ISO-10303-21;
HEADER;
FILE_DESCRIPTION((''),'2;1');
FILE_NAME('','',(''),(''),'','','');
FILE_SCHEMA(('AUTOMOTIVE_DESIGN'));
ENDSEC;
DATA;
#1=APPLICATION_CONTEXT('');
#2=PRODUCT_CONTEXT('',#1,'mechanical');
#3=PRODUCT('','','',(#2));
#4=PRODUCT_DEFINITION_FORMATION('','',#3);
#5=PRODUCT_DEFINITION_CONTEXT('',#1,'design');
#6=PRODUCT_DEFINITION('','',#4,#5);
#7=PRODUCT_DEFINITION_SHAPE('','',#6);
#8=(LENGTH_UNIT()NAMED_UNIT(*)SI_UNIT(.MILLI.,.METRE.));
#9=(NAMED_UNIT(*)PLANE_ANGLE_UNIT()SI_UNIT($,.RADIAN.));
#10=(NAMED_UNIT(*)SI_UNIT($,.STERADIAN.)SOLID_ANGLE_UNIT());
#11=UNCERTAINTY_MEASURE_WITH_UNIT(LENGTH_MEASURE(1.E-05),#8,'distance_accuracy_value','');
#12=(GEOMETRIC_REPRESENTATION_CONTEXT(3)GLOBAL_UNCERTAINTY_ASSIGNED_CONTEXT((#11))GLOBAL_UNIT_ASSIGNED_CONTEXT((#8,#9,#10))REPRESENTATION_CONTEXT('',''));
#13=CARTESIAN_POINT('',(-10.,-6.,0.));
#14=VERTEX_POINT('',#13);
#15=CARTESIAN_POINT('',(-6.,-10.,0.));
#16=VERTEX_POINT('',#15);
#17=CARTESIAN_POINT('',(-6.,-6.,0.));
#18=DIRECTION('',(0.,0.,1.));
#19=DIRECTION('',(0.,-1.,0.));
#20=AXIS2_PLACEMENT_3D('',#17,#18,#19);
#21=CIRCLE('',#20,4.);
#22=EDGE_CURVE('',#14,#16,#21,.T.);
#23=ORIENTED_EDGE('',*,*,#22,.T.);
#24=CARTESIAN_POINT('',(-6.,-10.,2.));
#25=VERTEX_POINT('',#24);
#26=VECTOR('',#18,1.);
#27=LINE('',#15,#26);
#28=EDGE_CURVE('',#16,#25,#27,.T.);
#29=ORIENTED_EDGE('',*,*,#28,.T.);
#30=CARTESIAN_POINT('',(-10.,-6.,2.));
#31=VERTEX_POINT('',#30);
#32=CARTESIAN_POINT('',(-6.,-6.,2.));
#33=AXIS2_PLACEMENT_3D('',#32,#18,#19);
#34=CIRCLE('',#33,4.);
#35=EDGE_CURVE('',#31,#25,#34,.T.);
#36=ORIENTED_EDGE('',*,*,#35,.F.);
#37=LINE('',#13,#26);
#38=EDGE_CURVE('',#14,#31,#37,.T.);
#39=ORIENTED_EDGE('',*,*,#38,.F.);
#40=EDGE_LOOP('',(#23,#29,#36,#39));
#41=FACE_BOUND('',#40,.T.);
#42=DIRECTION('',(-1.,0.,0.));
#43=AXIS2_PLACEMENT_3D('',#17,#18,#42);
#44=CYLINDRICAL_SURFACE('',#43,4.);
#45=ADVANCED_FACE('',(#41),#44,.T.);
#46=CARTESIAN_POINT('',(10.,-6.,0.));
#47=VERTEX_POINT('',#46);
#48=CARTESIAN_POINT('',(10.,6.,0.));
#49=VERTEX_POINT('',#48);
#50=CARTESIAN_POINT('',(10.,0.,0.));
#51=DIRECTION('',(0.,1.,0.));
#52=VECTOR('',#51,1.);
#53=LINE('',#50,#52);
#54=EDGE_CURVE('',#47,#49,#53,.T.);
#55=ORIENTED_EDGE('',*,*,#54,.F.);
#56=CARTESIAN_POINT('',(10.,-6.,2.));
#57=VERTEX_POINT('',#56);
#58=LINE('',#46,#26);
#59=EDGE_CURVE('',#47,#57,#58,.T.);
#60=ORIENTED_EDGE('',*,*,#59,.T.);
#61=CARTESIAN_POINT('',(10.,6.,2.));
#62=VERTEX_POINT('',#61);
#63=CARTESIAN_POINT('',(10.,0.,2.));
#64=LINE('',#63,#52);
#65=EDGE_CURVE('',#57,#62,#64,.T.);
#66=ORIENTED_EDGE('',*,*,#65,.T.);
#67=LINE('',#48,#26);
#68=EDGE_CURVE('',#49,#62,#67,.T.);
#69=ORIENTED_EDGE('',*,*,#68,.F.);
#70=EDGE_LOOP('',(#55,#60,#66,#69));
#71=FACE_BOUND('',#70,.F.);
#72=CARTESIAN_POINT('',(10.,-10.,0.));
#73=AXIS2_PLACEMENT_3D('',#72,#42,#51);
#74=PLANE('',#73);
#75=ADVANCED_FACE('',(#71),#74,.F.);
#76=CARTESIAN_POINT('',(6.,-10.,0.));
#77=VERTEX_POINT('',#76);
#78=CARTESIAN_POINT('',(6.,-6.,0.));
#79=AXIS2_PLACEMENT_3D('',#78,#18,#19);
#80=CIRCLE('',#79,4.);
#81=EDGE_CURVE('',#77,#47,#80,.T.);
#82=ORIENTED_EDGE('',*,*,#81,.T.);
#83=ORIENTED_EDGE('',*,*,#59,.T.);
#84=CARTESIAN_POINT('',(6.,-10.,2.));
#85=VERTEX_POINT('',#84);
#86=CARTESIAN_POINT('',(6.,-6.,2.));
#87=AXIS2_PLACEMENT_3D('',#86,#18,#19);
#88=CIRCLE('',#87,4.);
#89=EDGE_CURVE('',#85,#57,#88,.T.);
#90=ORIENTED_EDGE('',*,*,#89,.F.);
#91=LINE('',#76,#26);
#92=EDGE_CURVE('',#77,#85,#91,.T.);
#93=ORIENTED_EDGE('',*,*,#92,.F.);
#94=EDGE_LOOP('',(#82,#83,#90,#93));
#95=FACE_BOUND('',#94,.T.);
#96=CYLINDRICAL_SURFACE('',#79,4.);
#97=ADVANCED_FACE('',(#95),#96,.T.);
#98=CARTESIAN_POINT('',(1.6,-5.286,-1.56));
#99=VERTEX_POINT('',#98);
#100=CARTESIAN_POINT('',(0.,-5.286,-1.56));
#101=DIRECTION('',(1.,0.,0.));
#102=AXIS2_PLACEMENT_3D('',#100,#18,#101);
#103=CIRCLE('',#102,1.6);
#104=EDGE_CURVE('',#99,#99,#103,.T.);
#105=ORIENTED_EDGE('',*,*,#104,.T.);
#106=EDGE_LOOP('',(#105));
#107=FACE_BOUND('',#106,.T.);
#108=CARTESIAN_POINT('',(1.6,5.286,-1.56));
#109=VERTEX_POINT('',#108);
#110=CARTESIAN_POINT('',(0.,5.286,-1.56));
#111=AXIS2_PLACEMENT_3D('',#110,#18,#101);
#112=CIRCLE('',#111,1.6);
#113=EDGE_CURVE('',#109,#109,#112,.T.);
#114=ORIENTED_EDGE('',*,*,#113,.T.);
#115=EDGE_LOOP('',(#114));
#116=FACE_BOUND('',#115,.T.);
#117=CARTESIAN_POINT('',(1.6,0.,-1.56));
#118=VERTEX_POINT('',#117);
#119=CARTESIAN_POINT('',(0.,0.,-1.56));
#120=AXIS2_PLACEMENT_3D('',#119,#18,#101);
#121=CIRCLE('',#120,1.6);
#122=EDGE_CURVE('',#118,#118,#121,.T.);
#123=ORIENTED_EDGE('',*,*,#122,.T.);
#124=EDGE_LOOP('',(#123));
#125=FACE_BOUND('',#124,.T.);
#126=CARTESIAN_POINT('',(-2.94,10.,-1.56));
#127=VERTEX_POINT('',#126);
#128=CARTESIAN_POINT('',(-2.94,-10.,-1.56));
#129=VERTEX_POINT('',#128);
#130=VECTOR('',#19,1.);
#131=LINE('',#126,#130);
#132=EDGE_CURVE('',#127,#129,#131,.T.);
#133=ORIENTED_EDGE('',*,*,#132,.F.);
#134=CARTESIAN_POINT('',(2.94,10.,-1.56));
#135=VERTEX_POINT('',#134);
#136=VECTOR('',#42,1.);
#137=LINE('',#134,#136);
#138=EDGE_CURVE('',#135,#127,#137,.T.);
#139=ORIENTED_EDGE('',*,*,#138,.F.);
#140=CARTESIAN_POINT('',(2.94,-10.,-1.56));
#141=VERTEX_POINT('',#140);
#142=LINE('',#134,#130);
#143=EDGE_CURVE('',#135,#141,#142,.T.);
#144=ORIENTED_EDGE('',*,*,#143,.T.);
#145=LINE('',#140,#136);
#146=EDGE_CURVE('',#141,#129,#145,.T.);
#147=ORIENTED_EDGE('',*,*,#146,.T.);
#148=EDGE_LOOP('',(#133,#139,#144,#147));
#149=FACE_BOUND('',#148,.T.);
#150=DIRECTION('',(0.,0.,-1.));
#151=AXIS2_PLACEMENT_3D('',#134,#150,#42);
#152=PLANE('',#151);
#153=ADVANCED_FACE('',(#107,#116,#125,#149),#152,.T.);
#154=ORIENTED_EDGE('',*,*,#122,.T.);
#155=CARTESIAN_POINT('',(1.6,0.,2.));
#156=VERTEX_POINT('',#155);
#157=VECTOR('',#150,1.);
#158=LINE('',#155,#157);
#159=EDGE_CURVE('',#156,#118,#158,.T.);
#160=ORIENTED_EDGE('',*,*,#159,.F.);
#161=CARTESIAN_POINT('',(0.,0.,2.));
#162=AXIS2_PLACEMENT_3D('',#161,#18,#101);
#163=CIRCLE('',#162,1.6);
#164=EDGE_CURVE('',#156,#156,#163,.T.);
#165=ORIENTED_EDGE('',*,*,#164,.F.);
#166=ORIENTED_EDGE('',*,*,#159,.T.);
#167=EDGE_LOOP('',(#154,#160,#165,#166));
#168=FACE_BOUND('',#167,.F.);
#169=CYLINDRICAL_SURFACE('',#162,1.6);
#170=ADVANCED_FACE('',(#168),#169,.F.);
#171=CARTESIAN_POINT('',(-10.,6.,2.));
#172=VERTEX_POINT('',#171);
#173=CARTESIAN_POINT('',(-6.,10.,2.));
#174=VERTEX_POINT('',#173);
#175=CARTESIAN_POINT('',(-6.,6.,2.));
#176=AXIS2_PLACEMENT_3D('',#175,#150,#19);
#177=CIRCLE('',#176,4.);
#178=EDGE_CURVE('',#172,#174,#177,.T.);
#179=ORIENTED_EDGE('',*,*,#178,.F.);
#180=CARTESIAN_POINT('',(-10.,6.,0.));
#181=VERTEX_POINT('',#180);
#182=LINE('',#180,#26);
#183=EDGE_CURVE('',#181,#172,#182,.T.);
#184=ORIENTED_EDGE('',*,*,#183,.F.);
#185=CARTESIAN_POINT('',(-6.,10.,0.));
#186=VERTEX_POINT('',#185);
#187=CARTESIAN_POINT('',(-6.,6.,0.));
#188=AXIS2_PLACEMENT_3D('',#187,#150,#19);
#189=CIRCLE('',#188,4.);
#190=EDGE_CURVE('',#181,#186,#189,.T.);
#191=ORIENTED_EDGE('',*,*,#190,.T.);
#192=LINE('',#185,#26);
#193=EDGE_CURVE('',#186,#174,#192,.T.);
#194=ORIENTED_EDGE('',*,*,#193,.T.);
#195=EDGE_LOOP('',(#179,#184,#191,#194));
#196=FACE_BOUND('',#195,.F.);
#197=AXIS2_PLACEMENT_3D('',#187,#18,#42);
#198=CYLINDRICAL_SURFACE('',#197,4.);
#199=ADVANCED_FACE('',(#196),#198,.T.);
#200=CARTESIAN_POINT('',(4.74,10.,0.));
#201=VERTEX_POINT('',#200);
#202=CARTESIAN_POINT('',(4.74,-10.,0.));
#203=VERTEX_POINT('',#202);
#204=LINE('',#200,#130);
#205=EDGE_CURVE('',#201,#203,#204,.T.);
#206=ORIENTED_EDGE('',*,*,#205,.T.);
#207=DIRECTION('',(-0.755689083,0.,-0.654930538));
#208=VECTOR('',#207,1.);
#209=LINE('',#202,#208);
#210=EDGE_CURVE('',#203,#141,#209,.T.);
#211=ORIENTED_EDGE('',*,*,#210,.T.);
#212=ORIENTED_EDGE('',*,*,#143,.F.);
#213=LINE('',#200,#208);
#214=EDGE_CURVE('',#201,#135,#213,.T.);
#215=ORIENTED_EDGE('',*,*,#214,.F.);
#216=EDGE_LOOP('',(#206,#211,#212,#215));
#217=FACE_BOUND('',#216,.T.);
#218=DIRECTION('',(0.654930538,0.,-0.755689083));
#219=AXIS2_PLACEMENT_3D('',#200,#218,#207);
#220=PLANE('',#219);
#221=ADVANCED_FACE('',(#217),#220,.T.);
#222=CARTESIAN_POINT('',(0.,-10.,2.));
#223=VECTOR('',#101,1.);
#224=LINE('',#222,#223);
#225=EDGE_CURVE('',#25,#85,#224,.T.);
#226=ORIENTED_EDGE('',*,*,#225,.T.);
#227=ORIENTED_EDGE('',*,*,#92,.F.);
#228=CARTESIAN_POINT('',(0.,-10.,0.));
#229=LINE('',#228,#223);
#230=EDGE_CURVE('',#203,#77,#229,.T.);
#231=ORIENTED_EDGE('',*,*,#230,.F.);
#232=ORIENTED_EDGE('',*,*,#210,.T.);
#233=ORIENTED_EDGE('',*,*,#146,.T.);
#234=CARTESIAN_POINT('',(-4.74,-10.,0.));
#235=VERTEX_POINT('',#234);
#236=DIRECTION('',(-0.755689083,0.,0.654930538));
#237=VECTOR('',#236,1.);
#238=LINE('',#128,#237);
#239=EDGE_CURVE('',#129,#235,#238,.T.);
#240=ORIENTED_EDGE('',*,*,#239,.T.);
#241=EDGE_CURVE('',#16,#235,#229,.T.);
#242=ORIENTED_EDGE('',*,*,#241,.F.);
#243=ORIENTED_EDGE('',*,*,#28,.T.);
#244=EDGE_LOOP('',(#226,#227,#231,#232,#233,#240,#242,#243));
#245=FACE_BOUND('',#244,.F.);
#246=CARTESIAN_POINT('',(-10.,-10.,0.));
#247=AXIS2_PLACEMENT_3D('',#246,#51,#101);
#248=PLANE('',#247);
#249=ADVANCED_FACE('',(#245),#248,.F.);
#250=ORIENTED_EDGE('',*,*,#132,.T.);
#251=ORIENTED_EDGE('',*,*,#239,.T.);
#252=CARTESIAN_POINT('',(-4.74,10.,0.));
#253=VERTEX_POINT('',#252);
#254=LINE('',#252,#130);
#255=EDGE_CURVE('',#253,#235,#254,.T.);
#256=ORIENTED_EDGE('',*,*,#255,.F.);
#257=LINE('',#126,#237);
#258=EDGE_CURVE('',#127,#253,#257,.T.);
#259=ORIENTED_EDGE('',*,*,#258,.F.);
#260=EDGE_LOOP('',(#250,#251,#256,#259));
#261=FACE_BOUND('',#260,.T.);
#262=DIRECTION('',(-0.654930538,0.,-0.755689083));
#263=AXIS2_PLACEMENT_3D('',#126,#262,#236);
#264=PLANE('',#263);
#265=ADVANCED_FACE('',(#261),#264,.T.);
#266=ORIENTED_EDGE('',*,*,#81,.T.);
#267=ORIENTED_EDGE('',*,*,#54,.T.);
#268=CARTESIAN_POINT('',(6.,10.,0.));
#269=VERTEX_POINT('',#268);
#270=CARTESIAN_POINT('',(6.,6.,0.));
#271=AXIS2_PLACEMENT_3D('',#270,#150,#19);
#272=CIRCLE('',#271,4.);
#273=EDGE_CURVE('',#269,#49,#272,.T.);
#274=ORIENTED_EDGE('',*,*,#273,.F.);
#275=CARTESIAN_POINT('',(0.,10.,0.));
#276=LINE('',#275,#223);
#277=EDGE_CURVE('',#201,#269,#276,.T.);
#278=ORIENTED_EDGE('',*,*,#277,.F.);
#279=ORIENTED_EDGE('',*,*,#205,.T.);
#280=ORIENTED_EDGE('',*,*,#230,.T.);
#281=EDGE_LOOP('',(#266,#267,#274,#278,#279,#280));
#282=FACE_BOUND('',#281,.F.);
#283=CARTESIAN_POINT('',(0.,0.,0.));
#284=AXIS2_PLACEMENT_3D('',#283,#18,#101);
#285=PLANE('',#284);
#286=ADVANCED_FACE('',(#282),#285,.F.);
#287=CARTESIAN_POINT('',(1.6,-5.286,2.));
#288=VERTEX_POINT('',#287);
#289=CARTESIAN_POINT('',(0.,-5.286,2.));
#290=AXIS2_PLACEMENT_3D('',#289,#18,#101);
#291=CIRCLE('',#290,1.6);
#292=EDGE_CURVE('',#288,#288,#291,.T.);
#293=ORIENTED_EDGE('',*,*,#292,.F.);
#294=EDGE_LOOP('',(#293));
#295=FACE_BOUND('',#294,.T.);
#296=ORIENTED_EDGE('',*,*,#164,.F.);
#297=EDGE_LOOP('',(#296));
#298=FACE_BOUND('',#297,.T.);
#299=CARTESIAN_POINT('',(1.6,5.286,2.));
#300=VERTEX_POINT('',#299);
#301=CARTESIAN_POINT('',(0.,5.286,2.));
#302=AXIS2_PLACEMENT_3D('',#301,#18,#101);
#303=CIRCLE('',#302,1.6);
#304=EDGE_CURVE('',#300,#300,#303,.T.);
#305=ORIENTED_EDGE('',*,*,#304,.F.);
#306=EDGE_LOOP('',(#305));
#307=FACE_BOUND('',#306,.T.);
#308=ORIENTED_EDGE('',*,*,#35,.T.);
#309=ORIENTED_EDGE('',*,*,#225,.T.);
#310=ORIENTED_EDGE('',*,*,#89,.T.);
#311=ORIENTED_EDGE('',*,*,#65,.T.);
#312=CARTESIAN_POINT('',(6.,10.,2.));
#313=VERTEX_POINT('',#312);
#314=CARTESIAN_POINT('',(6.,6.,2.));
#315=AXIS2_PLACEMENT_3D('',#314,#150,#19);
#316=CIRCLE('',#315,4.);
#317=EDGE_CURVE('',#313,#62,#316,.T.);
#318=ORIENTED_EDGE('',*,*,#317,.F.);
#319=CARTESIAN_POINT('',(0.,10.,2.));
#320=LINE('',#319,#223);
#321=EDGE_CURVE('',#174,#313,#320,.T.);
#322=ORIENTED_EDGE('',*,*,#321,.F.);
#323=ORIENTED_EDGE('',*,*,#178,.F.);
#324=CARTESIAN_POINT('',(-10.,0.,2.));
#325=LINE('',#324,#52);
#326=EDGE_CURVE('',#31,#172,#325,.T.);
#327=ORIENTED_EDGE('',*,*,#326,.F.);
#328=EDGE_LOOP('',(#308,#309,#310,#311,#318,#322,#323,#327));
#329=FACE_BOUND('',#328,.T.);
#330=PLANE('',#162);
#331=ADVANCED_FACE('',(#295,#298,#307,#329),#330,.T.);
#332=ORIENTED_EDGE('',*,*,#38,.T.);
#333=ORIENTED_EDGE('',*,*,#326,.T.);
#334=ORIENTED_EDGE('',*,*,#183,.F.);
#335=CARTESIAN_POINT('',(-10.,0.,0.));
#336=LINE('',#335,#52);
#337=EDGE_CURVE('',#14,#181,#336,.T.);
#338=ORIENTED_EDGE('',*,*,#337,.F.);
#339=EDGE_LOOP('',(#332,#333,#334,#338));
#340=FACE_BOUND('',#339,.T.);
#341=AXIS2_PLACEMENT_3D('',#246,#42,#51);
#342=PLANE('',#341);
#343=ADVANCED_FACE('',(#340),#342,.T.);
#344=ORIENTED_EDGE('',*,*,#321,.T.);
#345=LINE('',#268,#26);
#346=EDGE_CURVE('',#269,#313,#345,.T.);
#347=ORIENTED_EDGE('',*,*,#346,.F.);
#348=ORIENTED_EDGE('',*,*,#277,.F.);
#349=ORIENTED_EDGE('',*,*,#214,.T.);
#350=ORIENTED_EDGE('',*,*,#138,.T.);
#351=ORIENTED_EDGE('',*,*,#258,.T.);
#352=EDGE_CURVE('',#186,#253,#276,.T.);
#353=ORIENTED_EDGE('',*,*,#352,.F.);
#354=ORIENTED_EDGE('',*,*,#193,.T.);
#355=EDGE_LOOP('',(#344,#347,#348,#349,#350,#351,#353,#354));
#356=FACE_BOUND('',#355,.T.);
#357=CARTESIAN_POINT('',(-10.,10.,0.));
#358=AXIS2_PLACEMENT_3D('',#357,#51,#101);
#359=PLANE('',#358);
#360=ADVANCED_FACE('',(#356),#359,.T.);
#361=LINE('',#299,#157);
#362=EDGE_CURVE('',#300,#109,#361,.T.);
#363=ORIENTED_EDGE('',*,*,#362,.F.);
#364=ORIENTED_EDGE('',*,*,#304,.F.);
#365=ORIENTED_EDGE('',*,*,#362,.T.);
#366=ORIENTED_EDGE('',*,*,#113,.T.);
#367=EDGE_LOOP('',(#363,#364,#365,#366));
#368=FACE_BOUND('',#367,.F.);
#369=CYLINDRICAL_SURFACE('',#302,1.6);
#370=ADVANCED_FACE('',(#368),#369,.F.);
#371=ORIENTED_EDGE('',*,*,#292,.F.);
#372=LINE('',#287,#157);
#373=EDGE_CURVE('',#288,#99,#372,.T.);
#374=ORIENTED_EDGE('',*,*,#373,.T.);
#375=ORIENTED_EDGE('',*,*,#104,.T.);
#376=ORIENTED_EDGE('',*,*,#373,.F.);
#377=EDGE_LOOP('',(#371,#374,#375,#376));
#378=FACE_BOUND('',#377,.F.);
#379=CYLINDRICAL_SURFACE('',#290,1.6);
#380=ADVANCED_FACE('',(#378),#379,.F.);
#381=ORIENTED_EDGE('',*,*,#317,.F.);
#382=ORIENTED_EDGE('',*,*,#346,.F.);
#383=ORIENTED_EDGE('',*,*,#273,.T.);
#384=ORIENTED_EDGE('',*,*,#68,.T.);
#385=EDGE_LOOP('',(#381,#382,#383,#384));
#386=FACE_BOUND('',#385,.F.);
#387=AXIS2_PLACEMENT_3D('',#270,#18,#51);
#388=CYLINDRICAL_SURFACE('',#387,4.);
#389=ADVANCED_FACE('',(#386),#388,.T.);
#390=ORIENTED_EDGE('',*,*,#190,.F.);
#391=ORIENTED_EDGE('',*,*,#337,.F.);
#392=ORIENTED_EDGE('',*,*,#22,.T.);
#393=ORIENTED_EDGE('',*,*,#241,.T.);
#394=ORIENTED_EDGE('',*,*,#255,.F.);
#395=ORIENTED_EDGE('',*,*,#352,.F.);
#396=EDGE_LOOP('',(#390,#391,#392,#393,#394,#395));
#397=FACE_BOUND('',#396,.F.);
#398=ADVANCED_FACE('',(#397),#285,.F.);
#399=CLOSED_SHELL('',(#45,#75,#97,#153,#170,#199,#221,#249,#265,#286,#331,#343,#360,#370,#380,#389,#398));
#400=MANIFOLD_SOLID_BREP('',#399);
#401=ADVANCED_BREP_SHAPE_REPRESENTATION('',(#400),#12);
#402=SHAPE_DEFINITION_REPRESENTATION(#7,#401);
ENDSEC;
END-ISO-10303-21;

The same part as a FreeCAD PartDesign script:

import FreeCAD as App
import Part
import Sketcher
from FreeCAD import Vector
Q = App.Units.Quantity


def edges_at(feature, points):
    """Names of the edges that pass closest to the given points."""
    edges = feature.Shape.Edges
    near = lambda p: min(range(len(edges)), key=lambda i: edges[i].distToShape(Part.Vertex(*p))[0])
    return sorted({f"Edge{near(p) + 1}" for p in points})

doc = App.newDocument("Part")
body = doc.addObject("PartDesign::Body", "Body")

# Sketch on XY plane
sketch1 = doc.addObject("Sketcher::SketchObject", "Sketch")
body.addObject(sketch1)
sketch1.AttachmentSupport = (doc.XY_Plane, [""])
sketch1.MapMode = "FlatFace"
sketch1.addGeometry([
    Part.LineSegment(Vector(-10, 10, 0), Vector(-10, -10, 0)),
    Part.LineSegment(Vector(-10, -10, 0), Vector(10, -10, 0)),
    Part.LineSegment(Vector(10, -10, 0), Vector(10, 10, 0)),
    Part.LineSegment(Vector(10, 10, 0), Vector(-10, 10, 0)),
], False)
sketch1.addConstraint([
    Sketcher.Constraint("Coincident", 0, 2, 1, 1),
    Sketcher.Constraint("Coincident", 1, 2, 2, 1),
    Sketcher.Constraint("Coincident", 2, 2, 3, 1),
    Sketcher.Constraint("Coincident", 3, 2, 0, 1),
    Sketcher.Constraint("Vertical", 0),
    Sketcher.Constraint("Horizontal", 1),
    Sketcher.Constraint("Vertical", 2),
    Sketcher.Constraint("Horizontal", 3),
    Sketcher.Constraint("Symmetric", 0, 2, 2, 2, -1, 1),
    Sketcher.Constraint("Equal", 3, 0),
    Sketcher.Constraint("DistanceX", 1, 1, 1, 2, Q("20 mm")),
])
pad1 = doc.addObject("PartDesign::Pad", "Pad")
body.addObject(pad1)
pad1.Profile = sketch1
pad1.Length = 2

# Sketch on XZ plane
sketch2 = doc.addObject("Sketcher::SketchObject", "Sketch001")
body.addObject(sketch2)
sketch2.AttachmentSupport = (doc.XZ_Plane, [""])
sketch2.MapMode = "FlatFace"
sketch2.AttachmentOffset = App.Placement(Vector(0, 0, -10), App.Rotation())
sketch2.addGeometry([
    Part.LineSegment(Vector(-4.7, 0, 0), Vector(4.7, 0, 0)),
    Part.LineSegment(Vector(4.7, 0, 0), Vector(2.9, -1.6, 0)),
    Part.LineSegment(Vector(2.9, -1.6, 0), Vector(-2.9, -1.6, 0)),
    Part.LineSegment(Vector(-2.9, -1.6, 0), Vector(-4.7, 0, 0)),
], False)
sketch2.addConstraint([
    Sketcher.Constraint("Coincident", 0, 2, 1, 1),
    Sketcher.Constraint("Coincident", 1, 2, 2, 1),
    Sketcher.Constraint("Coincident", 2, 2, 3, 1),
    Sketcher.Constraint("Coincident", 3, 2, 0, 1),
    Sketcher.Constraint("Horizontal", 0),
    Sketcher.Constraint("Horizontal", 2),
    Sketcher.Constraint("Symmetric", 0, 2, 3, 2, -1, 1),
    Sketcher.Constraint("Equal", 1, 3),
    Sketcher.Constraint("DistanceX", 0, 1, 0, 2, Q("9.48 mm")),
    Sketcher.Constraint("DistanceX", 2, 2, 2, 1, Q("5.88 mm")),
    Sketcher.Constraint("DistanceY", 1, 2, -1, 1, Q("1.56 mm")),
])
pad2 = doc.addObject("PartDesign::Pad", "Pad001")
body.addObject(pad2)
pad2.Profile = sketch2
pad2.Length = 20

# Sketch on XY plane
sketch3 = doc.addObject("Sketcher::SketchObject", "Sketch002")
body.addObject(sketch3)
sketch3.AttachmentSupport = (doc.XY_Plane, [""])
sketch3.MapMode = "FlatFace"
sketch3.AttachmentOffset = App.Placement(Vector(0, 0, 2), App.Rotation())
sketch3.addGeometry([
    Part.Circle(Vector(0, 0, 0), Vector(0, 0, 1), 1.6),
    Part.Circle(Vector(0, 5.3, 0), Vector(0, 0, 1), 1.6),
    Part.Circle(Vector(0, -5.3, 0), Vector(0, 0, 1), 1.6),
], False)
sketch3.addConstraint([
    Sketcher.Constraint("Coincident", 0, 3, -1, 1),
    Sketcher.Constraint("Equal", 0, 1),
    Sketcher.Constraint("Equal", 1, 2),
    Sketcher.Constraint("Symmetric", 1, 3, 2, 3, -1, 1),
    Sketcher.Constraint("PointOnObject", 1, 3, -2),
    Sketcher.Constraint("Diameter", 0, Q("3.2 mm")),
    Sketcher.Constraint("DistanceY", -1, 1, 1, 3, Q("5.286 mm")),
])
pocket1 = doc.addObject("PartDesign::Pocket", "Pocket")
body.addObject(pocket1)
pocket1.Profile = sketch3
pocket1.Type = "ThroughAll"
doc.recompute()

fillet = doc.addObject("PartDesign::Fillet", "Fillet")
body.addObject(fillet)
fillet.Base = (pocket1, edges_at(pocket1, [
    (-10, 10, 1),
    (10, 10, 1),
    (-10, -10, 1),
    (10, -10, 1),
]))
fillet.Radius = 4

doc.recompute()
